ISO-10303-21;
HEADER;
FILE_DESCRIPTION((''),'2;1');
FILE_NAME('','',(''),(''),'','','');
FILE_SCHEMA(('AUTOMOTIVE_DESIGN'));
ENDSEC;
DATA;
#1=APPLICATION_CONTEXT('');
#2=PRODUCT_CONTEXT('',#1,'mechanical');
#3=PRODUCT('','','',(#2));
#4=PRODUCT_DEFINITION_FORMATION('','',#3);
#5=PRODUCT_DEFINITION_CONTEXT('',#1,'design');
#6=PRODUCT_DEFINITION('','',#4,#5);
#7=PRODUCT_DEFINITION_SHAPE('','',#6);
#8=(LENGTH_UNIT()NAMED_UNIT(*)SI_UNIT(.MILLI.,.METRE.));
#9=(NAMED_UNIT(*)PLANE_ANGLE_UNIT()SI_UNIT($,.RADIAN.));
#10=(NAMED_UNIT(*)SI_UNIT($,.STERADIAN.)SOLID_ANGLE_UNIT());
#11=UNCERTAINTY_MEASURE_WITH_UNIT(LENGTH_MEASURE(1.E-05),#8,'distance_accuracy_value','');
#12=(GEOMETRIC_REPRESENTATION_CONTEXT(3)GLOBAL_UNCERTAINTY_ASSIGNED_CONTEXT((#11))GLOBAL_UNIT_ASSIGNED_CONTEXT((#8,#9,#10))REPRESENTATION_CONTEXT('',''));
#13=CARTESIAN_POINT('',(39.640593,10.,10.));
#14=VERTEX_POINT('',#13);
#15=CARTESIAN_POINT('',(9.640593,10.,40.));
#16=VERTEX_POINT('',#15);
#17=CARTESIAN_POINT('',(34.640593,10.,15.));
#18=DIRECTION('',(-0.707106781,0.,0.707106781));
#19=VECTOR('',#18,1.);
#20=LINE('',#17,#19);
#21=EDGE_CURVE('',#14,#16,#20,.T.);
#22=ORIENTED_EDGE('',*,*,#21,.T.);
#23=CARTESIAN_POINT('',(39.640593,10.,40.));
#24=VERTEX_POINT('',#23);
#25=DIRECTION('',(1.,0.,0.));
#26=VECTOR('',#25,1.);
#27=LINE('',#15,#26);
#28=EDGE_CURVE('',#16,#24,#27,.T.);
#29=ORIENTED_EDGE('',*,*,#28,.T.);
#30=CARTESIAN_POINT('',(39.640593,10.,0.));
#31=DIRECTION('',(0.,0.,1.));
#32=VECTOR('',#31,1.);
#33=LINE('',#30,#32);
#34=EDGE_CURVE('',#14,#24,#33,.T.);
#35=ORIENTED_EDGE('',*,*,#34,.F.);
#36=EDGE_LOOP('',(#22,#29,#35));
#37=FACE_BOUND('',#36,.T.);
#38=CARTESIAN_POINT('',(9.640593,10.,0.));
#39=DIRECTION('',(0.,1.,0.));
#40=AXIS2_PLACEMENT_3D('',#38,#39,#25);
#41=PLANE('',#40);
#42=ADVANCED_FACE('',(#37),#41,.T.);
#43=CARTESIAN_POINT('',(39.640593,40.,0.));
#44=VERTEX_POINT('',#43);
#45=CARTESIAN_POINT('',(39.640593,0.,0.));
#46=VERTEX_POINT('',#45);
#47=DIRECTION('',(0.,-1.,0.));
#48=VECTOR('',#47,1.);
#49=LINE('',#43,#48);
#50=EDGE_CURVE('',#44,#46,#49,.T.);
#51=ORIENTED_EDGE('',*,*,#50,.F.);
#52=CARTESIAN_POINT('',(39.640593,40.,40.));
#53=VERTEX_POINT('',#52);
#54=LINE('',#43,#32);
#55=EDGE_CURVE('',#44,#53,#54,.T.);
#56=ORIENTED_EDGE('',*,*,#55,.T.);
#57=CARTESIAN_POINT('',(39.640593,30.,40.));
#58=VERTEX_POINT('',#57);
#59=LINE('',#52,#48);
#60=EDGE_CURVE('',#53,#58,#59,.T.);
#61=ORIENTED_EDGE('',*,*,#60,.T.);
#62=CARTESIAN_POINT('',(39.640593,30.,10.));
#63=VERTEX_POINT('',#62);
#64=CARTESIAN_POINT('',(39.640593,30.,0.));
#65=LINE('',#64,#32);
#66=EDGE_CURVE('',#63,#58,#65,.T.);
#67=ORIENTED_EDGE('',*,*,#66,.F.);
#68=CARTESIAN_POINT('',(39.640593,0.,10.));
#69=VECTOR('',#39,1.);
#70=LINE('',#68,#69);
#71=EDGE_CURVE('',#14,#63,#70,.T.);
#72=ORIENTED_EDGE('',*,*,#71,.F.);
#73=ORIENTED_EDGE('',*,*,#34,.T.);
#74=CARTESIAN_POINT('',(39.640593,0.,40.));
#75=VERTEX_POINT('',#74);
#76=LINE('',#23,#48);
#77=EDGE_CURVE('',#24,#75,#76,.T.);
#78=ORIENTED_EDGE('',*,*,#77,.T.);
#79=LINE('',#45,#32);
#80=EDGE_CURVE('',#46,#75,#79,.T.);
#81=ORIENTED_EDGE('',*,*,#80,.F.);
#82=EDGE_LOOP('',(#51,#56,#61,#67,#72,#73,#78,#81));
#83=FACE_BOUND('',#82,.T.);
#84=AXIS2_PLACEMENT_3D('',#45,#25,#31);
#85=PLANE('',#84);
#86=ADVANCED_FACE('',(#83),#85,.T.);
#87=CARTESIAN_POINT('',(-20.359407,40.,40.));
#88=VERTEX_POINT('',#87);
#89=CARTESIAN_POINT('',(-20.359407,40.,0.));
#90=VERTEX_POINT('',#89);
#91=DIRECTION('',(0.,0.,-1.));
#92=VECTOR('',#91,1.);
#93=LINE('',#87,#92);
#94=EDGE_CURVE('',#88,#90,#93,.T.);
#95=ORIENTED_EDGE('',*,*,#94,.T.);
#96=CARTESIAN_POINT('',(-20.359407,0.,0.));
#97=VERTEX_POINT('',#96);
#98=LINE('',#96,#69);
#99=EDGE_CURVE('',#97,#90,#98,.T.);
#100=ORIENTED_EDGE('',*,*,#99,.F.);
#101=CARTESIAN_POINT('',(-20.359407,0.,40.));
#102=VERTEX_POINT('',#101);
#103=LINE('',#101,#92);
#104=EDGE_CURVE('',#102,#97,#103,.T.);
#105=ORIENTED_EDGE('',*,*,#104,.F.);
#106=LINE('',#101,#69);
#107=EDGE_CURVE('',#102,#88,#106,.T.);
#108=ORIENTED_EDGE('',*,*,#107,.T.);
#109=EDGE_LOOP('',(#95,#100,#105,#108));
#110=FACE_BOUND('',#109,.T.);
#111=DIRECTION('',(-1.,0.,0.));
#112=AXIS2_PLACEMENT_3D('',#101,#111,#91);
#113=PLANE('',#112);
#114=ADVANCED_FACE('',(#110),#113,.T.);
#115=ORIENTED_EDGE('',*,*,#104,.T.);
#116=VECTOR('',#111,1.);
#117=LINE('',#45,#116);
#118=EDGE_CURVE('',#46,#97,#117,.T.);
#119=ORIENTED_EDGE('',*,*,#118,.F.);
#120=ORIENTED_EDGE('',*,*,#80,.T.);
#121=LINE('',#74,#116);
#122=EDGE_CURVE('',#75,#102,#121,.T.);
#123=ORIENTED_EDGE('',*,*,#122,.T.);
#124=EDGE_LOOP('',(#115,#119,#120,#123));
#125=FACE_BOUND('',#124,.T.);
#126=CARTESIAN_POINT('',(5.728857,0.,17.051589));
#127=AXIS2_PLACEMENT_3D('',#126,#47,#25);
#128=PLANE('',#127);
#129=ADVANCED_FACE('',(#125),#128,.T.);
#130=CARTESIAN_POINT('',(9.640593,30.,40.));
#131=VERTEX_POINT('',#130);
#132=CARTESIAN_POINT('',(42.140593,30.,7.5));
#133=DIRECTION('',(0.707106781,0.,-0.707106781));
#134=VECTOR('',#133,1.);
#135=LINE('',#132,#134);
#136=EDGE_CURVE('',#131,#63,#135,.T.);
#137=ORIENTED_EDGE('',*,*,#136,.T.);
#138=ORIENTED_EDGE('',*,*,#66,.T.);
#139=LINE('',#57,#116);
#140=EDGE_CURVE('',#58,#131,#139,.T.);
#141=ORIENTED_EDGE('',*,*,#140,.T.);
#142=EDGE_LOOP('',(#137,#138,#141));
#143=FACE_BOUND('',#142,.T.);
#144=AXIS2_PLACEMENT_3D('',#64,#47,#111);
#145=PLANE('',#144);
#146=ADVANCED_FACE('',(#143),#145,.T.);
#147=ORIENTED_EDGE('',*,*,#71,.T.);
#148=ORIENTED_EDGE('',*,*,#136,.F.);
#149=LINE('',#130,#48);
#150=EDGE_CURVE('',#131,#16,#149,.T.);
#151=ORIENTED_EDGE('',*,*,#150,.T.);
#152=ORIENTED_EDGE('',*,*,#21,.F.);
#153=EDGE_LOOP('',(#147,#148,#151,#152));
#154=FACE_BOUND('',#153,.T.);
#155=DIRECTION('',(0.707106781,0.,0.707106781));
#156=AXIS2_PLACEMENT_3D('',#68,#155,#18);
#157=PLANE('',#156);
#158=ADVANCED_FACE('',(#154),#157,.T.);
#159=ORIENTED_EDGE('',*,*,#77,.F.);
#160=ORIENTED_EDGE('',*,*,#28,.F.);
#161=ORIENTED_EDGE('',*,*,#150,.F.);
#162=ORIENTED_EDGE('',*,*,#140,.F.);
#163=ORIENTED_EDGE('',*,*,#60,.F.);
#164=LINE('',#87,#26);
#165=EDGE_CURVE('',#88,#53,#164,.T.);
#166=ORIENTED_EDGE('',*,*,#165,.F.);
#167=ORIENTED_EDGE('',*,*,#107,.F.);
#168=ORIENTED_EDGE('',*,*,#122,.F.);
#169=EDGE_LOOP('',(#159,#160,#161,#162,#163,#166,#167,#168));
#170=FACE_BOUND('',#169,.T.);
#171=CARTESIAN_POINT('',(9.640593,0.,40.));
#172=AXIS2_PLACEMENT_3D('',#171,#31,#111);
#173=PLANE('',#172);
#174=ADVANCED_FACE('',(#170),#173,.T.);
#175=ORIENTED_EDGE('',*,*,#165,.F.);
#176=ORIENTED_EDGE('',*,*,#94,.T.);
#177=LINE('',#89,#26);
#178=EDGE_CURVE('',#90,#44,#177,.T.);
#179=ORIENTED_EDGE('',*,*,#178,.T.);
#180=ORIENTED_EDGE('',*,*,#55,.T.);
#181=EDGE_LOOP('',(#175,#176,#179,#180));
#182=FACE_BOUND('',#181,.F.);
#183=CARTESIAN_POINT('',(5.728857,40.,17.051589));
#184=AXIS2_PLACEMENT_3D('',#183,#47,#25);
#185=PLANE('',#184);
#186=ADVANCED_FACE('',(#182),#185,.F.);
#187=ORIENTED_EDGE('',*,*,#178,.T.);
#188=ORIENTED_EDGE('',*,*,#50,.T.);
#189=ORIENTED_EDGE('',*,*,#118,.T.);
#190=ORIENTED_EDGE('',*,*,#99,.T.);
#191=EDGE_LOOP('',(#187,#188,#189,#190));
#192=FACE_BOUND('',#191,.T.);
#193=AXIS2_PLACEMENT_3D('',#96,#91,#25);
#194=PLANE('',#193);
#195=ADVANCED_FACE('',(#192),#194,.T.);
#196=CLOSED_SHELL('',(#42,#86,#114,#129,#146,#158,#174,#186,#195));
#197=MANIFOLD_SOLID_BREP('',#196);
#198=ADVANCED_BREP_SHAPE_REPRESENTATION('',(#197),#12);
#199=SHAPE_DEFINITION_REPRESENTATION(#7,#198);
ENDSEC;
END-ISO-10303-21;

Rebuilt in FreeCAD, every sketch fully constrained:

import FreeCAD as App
import Part
import Sketcher
Q = App.Units.Quantity


def add_polygon(sketch, points):
    """Adds a closed chain of lines whose ends are joined by coincident constraints."""
    first, n = sketch.GeometryCount, len(points)
    for a, b in zip(points, points[1:] + points[:1]):
        sketch.addGeometry(Part.LineSegment(App.Vector(*a, 0), App.Vector(*b, 0)), False)
    for i in range(n):
        sketch.addConstraint(Sketcher.Constraint("Coincident", first + i, 2, first + (i + 1) % n, 1))

doc = App.newDocument("Part")
params = doc.addObject("Spreadsheet::Sheet", "Params")
for row, (alias, value) in enumerate([
    ("sketch1_width", "60 mm"),
    ("sketch1_width2", "30 mm"),
    ("sketch1_height", "10 mm"),
    ("sketch1_height2", "40 mm"),
    ("pad1_length", "40 mm"),
    ("sketch2_width", "30 mm"),
    ("sketch2_height", "10 mm"),
    ("sketch2_height2", "40 mm"),
    ("pad2_length", "40 mm"),
], start=1):
    params.set(f"A{row}", alias)
    params.set(f"B{row}", "=" + value)
    params.setAlias(f"B{row}", alias)

body = doc.addObject("PartDesign::Body", "Body")

# Sketch on XZ plane
sketch1 = body.newObject("Sketcher::SketchObject", "Sketch")
sketch1.AttachmentSupport = (doc.getObject("XZ_Plane"), [""])
sketch1.MapMode = "FlatFace"
add_polygon(sketch1, [(-20.359407, 0), (39.640593, 0), (39.640593, 10), (9.640593, 40), (-20.359407, 40)])  # lines 0-4
sketch1.addConstraint([
    Sketcher.Constraint("Horizontal", 0),
    Sketcher.Constraint("Vertical", 1),
    Sketcher.Constraint("Horizontal", 3),
    Sketcher.Constraint("Vertical", 4),
    Sketcher.Constraint("PointOnObject", 0, 2, -1),
    Sketcher.Constraint("DistanceX", 0, 1, 0, 2, Q("60 mm")),
    Sketcher.Constraint("DistanceX", 3, 2, 3, 1, Q("30 mm")),
    Sketcher.Constraint("DistanceY", 1, 1, 1, 2, Q("10 mm")),
    Sketcher.Constraint("DistanceY", 4, 2, 4, 1, Q("40 mm")),
    Sketcher.Constraint("DistanceX", -1, 1, 0, 2, Q("39.640593 mm")),
])
sketch1.setExpression("Constraints[10]", "Params.sketch1_width")
sketch1.setExpression("Constraints[11]", "Params.sketch1_width2")
sketch1.setExpression("Constraints[12]", "Params.sketch1_height")
sketch1.setExpression("Constraints[13]", "Params.sketch1_height2")
pad1 = body.newObject("PartDesign::Pad", "Pad")
pad1.Profile = sketch1
pad1.setExpression("Length", "Params.pad1_length")
pad1.Reversed = True

# Sketch on XY plane
sketch2 = body.newObject("Sketcher::SketchObject", "Sketch001")
sketch2.AttachmentSupport = (doc.getObject("XY_Plane"), [""])
sketch2.MapMode = "FlatFace"
add_polygon(sketch2, [(39.640593, 10), (39.640593, 0), (2.79917, 0), (2.79917, 40), (39.640593, 40), (39.640593, 30), (9.640593, 30), (9.640593, 10)])  # lines 0-7
sketch2.addConstraint([
    Sketcher.Constraint("Vertical", 0),
    Sketcher.Constraint("Horizontal", 1),
    Sketcher.Constraint("Vertical", 2),
    Sketcher.Constraint("Horizontal", 3),
    Sketcher.Constraint("Vertical", 4),
    Sketcher.Constraint("Horizontal", 5),
    Sketcher.Constraint("Vertical", 6),
    Sketcher.Constraint("Horizontal", 7),
    Sketcher.Constraint("PointOnObject", 0, 2, -1),
    Sketcher.Constraint("Vertical", 0, 2, 3, 2),
    Sketcher.Constraint("Equal", 0, 4),
    Sketcher.Constraint("DistanceX", 5, 2, 5, 1, Q("30 mm")),
    Sketcher.Constraint("DistanceY", 0, 2, 0, 1, Q("10 mm")),
    Sketcher.Constraint("DistanceY", 2, 1, 2, 2, Q("40 mm")),
    Sketcher.Constraint("DistanceX", 1, 2, 1, 1, Q("36.841423 mm")),
    Sketcher.Constraint("DistanceX", -1, 1, 1, 2, Q("2.79917 mm")),
])
sketch2.setExpression("Constraints[19]", "Params.sketch2_width")
sketch2.setExpression("Constraints[20]", "Params.sketch2_height")
sketch2.setExpression("Constraints[21]", "Params.sketch2_height2")
pad2 = body.newObject("PartDesign::Pad", "Pad001")
pad2.Profile = sketch2
pad2.setExpression("Length", "Params.pad2_length")

doc.recompute()
